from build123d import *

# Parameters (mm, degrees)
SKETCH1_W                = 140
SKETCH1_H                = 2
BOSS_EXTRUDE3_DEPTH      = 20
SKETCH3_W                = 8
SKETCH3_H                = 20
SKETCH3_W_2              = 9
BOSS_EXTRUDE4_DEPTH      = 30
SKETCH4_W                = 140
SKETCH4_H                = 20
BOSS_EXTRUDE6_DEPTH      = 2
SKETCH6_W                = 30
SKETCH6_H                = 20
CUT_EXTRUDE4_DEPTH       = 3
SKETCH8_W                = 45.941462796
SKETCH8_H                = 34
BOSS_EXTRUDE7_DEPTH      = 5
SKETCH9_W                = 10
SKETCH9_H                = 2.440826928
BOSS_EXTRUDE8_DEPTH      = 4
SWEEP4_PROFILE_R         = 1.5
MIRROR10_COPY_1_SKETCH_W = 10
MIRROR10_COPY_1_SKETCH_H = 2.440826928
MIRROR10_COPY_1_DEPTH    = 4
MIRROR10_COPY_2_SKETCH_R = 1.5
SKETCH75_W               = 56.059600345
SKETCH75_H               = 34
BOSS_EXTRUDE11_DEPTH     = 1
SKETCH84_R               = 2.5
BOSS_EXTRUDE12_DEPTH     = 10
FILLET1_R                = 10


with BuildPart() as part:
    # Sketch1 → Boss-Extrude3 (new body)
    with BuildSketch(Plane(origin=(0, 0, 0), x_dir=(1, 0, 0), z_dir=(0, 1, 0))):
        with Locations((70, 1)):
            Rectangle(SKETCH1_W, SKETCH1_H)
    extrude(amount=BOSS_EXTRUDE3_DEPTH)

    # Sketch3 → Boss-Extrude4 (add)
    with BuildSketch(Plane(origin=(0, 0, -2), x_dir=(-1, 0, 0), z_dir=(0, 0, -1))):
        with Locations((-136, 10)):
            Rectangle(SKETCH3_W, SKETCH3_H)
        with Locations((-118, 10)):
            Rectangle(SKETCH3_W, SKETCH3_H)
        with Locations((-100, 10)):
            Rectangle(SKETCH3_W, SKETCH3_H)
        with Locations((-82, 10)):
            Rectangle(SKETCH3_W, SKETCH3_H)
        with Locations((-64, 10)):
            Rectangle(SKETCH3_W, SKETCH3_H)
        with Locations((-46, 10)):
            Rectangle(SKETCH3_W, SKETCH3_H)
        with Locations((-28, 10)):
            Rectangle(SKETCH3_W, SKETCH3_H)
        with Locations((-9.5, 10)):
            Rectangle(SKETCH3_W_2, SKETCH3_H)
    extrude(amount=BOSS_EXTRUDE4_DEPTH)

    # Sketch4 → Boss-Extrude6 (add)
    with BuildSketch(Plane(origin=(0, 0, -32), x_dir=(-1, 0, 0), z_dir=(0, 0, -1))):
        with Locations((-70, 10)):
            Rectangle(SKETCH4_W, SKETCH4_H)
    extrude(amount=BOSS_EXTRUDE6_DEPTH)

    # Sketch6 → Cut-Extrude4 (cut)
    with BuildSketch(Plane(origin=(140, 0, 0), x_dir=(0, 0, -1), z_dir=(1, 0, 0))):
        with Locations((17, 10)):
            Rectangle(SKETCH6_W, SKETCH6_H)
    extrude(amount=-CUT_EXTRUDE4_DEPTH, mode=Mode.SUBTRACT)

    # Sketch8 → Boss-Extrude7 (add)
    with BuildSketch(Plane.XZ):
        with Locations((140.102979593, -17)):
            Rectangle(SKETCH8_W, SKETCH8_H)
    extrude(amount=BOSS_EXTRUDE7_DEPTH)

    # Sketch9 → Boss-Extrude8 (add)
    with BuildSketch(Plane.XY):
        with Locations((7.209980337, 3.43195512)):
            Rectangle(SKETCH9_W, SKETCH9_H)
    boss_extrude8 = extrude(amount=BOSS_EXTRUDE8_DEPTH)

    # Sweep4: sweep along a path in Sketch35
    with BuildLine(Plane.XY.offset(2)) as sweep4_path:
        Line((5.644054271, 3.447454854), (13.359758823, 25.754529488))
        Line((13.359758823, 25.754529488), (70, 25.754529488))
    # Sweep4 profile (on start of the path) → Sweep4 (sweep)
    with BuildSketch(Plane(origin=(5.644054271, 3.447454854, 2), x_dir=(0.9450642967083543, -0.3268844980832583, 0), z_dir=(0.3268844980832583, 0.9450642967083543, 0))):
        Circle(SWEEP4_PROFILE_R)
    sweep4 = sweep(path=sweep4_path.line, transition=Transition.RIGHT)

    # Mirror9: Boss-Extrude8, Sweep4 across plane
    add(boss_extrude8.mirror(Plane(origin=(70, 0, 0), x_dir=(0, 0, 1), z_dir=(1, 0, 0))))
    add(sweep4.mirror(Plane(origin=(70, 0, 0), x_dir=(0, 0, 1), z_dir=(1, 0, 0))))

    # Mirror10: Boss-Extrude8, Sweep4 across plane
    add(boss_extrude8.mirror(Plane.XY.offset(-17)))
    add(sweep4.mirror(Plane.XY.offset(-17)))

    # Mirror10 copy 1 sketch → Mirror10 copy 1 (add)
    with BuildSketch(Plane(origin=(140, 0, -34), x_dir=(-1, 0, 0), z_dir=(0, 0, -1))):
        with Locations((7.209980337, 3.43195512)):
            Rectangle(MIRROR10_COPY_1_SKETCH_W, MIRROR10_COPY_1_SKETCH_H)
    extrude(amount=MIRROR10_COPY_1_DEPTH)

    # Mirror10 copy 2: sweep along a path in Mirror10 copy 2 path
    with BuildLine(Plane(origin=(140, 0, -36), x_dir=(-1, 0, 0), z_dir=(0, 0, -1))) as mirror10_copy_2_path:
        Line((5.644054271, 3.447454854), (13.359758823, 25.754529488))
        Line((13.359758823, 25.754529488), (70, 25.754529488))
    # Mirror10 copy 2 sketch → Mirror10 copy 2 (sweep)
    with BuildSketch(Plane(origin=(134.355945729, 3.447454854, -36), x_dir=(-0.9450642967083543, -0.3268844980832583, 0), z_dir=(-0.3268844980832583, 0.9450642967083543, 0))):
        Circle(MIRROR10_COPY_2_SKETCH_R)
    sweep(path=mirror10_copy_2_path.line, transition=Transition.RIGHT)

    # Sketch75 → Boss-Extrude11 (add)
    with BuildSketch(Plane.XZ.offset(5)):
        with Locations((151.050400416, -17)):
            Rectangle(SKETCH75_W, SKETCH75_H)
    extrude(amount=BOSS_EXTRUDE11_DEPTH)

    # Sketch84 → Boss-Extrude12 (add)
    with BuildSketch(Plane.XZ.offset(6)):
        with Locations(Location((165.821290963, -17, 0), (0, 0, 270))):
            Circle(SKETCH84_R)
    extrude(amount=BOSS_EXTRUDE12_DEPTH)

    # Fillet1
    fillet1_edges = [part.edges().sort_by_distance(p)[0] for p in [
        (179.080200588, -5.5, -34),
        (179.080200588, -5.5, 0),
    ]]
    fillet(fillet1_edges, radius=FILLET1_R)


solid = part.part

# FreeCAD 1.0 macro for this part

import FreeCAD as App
import Part
import Sketcher
Q = App.Units.Quantity


def edges_at(feature, points):
    """Names of the edges that pass closest to the given points."""
    edges = feature.Shape.Edges
    near = lambda p: min(range(len(edges)), key=lambda i: edges[i].distToShape(Part.Vertex(*p))[0])
    return sorted({f"Edge{near(p) + 1}" for p in points})


def add_polygon(sketch, points):
    """Adds a closed chain of lines whose ends are joined by coincident constraints."""
    first, n = sketch.GeometryCount, len(points)
    for a, b in zip(points, points[1:] + points[:1]):
        sketch.addGeometry(Part.LineSegment(App.Vector(*a, 0), App.Vector(*b, 0)), False)
    for i in range(n):
        sketch.addConstraint(Sketcher.Constraint("Coincident", first + i, 2, first + (i + 1) % n, 1))

doc = App.newDocument("Part")
body = doc.addObject("PartDesign::Body", "Body")

# Sketch on XZ plane
sketch1 = body.newObject("Sketcher::SketchObject", "Sketch")
sketch1.AttachmentSupport = (doc.getObject("XZ_Plane"), [""])
sketch1.MapMode = "FlatFace"
add_polygon(sketch1, [(0, -2), (0, 0), (140, 0), (140, -2)])  # lines 0-3
sketch1.addConstraint([
    Sketcher.Constraint("Vertical", 0),
    Sketcher.Constraint("Horizontal", 1),
    Sketcher.Constraint("Vertical", 2),
    Sketcher.Constraint("Horizontal", 3),
    Sketcher.Constraint("Coincident", 0, 2, -1, 1),
    Sketcher.Constraint("DistanceX", 1, 1, 1, 2, Q("140 mm")),
    Sketcher.Constraint("DistanceY", 0, 1, 0, 2, Q("2 mm")),
])
pad1 = body.newObject("PartDesign::Pad", "Pad")
pad1.Profile = sketch1
pad1.Length = 20
pad1.Reversed = True

# Sketch on XY plane
sketch2 = body.newObject("Sketcher::SketchObject", "Sketch001")
sketch2.AttachmentSupport = (doc.getObject("XY_Plane"), [""])
sketch2.MapMode = "FlatFace"
sketch2.AttachmentOffset = App.Placement(App.Vector(0, 0, -2), App.Rotation())
add_polygon(sketch2, [(140, 20), (140, 0), (132, 0), (132, 20)])  # lines 0-3
add_polygon(sketch2, [(122, 20), (122, 0), (114, 0), (114, 20)])  # lines 4-7
add_polygon(sketch2, [(104, 20), (104, 0), (96, 0), (96, 20)])  # lines 8-11
add_polygon(sketch2, [(86, 20), (86, 0), (78, 0), (78, 20)])  # lines 12-15
add_polygon(sketch2, [(68, 20), (68, 0), (60, 0), (60, 20)])  # lines 16-19
add_polygon(sketch2, [(50, 20), (50, 0), (42, 0), (42, 20)])  # lines 20-23
add_polygon(sketch2, [(32, 20), (32, 0), (24, 0), (24, 20)])  # lines 24-27
add_polygon(sketch2, [(14, 20), (14, 0), (5, 0), (5, 20)])  # lines 28-31
sketch2.addConstraint([
    Sketcher.Constraint("Vertical", 0),
    Sketcher.Constraint("Horizontal", 1),
    Sketcher.Constraint("Vertical", 2),
    Sketcher.Constraint("Horizontal", 3),
    Sketcher.Constraint("Vertical", 4),
    Sketcher.Constraint("Horizontal", 5),
    Sketcher.Constraint("Vertical", 6),
    Sketcher.Constraint("Horizontal", 7),
    Sketcher.Constraint("Vertical", 8),
    Sketcher.Constraint("Horizontal", 9),
    Sketcher.Constraint("Vertical", 10),
    Sketcher.Constraint("Horizontal", 11),
    Sketcher.Constraint("Vertical", 12),
    Sketcher.Constraint("Horizontal", 13),
    Sketcher.Constraint("Vertical", 14),
    Sketcher.Constraint("Horizontal", 15),
    Sketcher.Constraint("Vertical", 16),
    Sketcher.Constraint("Horizontal", 17),
    Sketcher.Constraint("Vertical", 18),
    Sketcher.Constraint("Horizontal", 19),
    Sketcher.Constraint("Vertical", 20),
    Sketcher.Constraint("Horizontal", 21),
    Sketcher.Constraint("Vertical", 22),
    Sketcher.Constraint("Horizontal", 23),
    Sketcher.Constraint("Vertical", 24),
    Sketcher.Constraint("Horizontal", 25),
    Sketcher.Constraint("Vertical", 26),
    Sketcher.Constraint("Horizontal", 27),
    Sketcher.Constraint("Vertical", 28),
    Sketcher.Constraint("Horizontal", 29),
    Sketcher.Constraint("Vertical", 30),
    Sketcher.Constraint("Horizontal", 31),
    Sketcher.Constraint("PointOnObject", 0, 2, -1),
    Sketcher.Constraint("PointOnObject", 4, 2, -1),
    Sketcher.Constraint("PointOnObject", 8, 2, -1),
    Sketcher.Constraint("PointOnObject", 12, 2, -1),
    Sketcher.Constraint("PointOnObject", 16, 2, -1),
    Sketcher.Constraint("PointOnObject", 20, 2, -1),
    Sketcher.Constraint("PointOnObject", 24, 2, -1),
    Sketcher.Constraint("PointOnObject", 28, 2, -1),
    Sketcher.Constraint("Horizontal", 3, 2, 6, 2),
    Sketcher.Constraint("Horizontal", 7, 2, 10, 2),
    Sketcher.Constraint("Horizontal", 11, 2, 14, 2),
    Sketcher.Constraint("Horizontal", 15, 2, 18, 2),
    Sketcher.Constraint("Horizontal", 19, 2, 22, 2),
    Sketcher.Constraint("Horizontal", 23, 2, 26, 2),
    Sketcher.Constraint("Horizontal", 27, 2, 30, 2),
    Sketcher.Constraint("Equal", 3, 5),
    Sketcher.Constraint("Equal", 7, 9),
    Sketcher.Constraint("Equal", 11, 13),
    Sketcher.Constraint("Equal", 15, 17),
    Sketcher.Constraint("Equal", 19, 21),
    Sketcher.Constraint("Equal", 23, 25),
    Sketcher.Constraint("DistanceX", 1, 2, 1, 1, Q("8 mm")),
    Sketcher.Constraint("DistanceX", 29, 2, 29, 1, Q("9 mm")),
    Sketcher.Constraint("DistanceY", 0, 2, 0, 1, Q("20 mm")),
    Sketcher.Constraint("DistanceX", -1, 1, 0, 2, Q("140 mm")),
    Sketcher.Constraint("DistanceX", -1, 1, 4, 2, Q("122 mm")),
    Sketcher.Constraint("DistanceX", -1, 1, 8, 2, Q("104 mm")),
    Sketcher.Constraint("DistanceX", -1, 1, 12, 2, Q("86 mm")),
    Sketcher.Constraint("DistanceX", -1, 1, 16, 2, Q("68 mm")),
    Sketcher.Constraint("DistanceX", -1, 1, 20, 2, Q("50 mm")),
    Sketcher.Constraint("DistanceX", -1, 1, 24, 2, Q("32 mm")),
    Sketcher.Constraint("DistanceX", -1, 1, 28, 2, Q("14 mm")),
])
pad2 = body.newObject("PartDesign::Pad", "Pad001")
pad2.Profile = sketch2
pad2.Length = 30
pad2.Reversed = True

# Sketch on XY plane
sketch3 = body.newObject("Sketcher::SketchObject", "Sketch002")
sketch3.AttachmentSupport = (doc.getObject("XY_Plane"), [""])
sketch3.MapMode = "FlatFace"
sketch3.AttachmentOffset = App.Placement(App.Vector(0, 0, -32), App.Rotation())
add_polygon(sketch3, [(140, 20), (140, 0), (0, 0), (0, 20)])  # lines 0-3
sketch3.addConstraint([
    Sketcher.Constraint("Vertical", 0),
    Sketcher.Constraint("Horizontal", 1),
    Sketcher.Constraint("Vertical", 2),
    Sketcher.Constraint("Horizontal", 3),
    Sketcher.Constraint("Coincident", 1, 2, -1, 1),
    Sketcher.Constraint("DistanceX", 1, 2, 1, 1, Q("140 mm")),
    Sketcher.Constraint("DistanceY", 0, 2, 0, 1, Q("20 mm")),
])
pad3 = body.newObject("PartDesign::Pad", "Pad002")
pad3.Profile = sketch3
pad3.Length = 2
pad3.Reversed = True

# Sketch on YZ plane
sketch4 = body.newObject("Sketcher::SketchObject", "Sketch003")
sketch4.AttachmentSupport = (doc.getObject("YZ_Plane"), [""])
sketch4.MapMode = "FlatFace"
sketch4.AttachmentOffset = App.Placement(App.Vector(0, 0, 140), App.Rotation())
add_polygon(sketch4, [(20, -2), (0, -2), (0, -32), (20, -32)])  # lines 0-3
sketch4.addConstraint([
    Sketcher.Constraint("Horizontal", 0),
    Sketcher.Constraint("Vertical", 1),
    Sketcher.Constraint("Horizontal", 2),
    Sketcher.Constraint("Vertical", 3),
    Sketcher.Constraint("PointOnObject", 0, 2, -2),
    Sketcher.Constraint("DistanceX", 0, 2, 0, 1, Q("20 mm")),
    Sketcher.Constraint("DistanceY", 1, 2, 1, 1, Q("30 mm")),
    Sketcher.Constraint("DistanceY", 0, 2, -1, 1, Q("2 mm")),
])
pocket1 = body.newObject("PartDesign::Pocket", "Pocket")
pocket1.Profile = sketch4
pocket1.Length = 3

# Sketch on XZ plane
sketch5 = body.newObject("Sketcher::SketchObject", "Sketch004")
sketch5.AttachmentSupport = (doc.getObject("XZ_Plane"), [""])
sketch5.MapMode = "FlatFace"
add_polygon(sketch5, [(117.132248, 0), (117.132248, -34), (163.073711, -34), (163.073711, 0)])  # lines 0-3
sketch5.addConstraint([
    Sketcher.Constraint("Vertical", 0),
    Sketcher.Constraint("Horizontal", 1),
    Sketcher.Constraint("Vertical", 2),
    Sketcher.Constraint("Horizontal", 3),
    Sketcher.Constraint("PointOnObject", 2, 2, -1),
    Sketcher.Constraint("DistanceY", 0, 2, 0, 1, Q("34 mm")),
    Sketcher.Constraint("DistanceX", 1, 1, 1, 2, Q("45.941463 mm")),
    Sketcher.Constraint("DistanceX", -1, 1, 0, 2, Q("117.132248 mm")),
])
pad4 = body.newObject("PartDesign::Pad", "Pad003")
pad4.Profile = sketch5
pad4.Length = 5

# Sketch on XY plane
sketch6 = body.newObject("Sketcher::SketchObject", "Sketch005")
sketch6.AttachmentSupport = (doc.getObject("XY_Plane"), [""])
sketch6.MapMode = "FlatFace"
add_polygon(sketch6, [(2.20998, 4.652369), (2.20998, 2.211542), (12.20998, 2.211542), (12.20998, 4.652369)])  # lines 0-3
sketch6.addConstraint([
    Sketcher.Constraint("Vertical", 0),
    Sketcher.Constraint("Horizontal", 1),
    Sketcher.Constraint("Vertical", 2),
    Sketcher.Constraint("Horizontal", 3),
    Sketcher.Constraint("DistanceX", 1, 1, 1, 2, Q("10 mm")),
    Sketcher.Constraint("DistanceY", 0, 2, 0, 1, Q("2.440827 mm")),
    Sketcher.Constraint("DistanceX", -1, 1, 0, 2, Q("2.20998 mm")),
    Sketcher.Constraint("DistanceY", -1, 1, 0, 2, Q("2.211542 mm")),
])
pad5 = body.newObject("PartDesign::Pad", "Pad004")
pad5.Profile = sketch6
pad5.Length = 4

# Sketch on an angled plane
sketch7 = body.newObject("Sketcher::SketchObject", "Sketch006")
sketch7.Placement = App.Placement(App.Vector(5.644054, 3.447455, 2), App.Rotation(App.Vector(0.945064297, -0.326884498, 0), App.Vector(0, 0, -1), App.Vector(0.326884498, 0.945064297, 0), "ZXY"))
sketch7.addGeometry(Part.Circle(App.Vector(0, 0, 0), App.Vector(0, 0, 1), 1.5), False)
sketch7.addConstraint([
    Sketcher.Constraint("Coincident", 0, 3, -1, 1),
    Sketcher.Constraint("Diameter", 0, Q("3 mm")),
])

# Sketch on XY plane
sketch8 = body.newObject("Sketcher::SketchObject", "Sketch007")
sketch8.AttachmentSupport = (doc.getObject("XY_Plane"), [""])
sketch8.MapMode = "FlatFace"
sketch8.AttachmentOffset = App.Placement(App.Vector(0, 0, 2), App.Rotation())
sketch8.addGeometry([
    Part.LineSegment(App.Vector(5.644054, 3.447455, 0), App.Vector(13.359759, 25.754529, 0)),
    Part.LineSegment(App.Vector(13.359759, 25.754529, 0), App.Vector(70, 25.754529, 0)),
], False)
sketch8.addConstraint([
    Sketcher.Constraint("Coincident", 0, 2, 1, 1),
    Sketcher.Constraint("Horizontal", 1),
    Sketcher.Constraint("DistanceX", -1, 1, 1, 2, Q("70 mm")),
    Sketcher.Constraint("DistanceX", 1, 1, 1, 2, Q("56.640241 mm")),
    Sketcher.Constraint("DistanceY", -1, 1, 0, 2, Q("25.754529 mm")),
    Sketcher.Constraint("Distance", 0, Q("23.603764 mm")),
    Sketcher.Constraint("DistanceX", -1, 1, 0, 1, Q("5.644054 mm")),
])
doc.recompute()

additivepipe = body.newObject("PartDesign::AdditivePipe", "AdditivePipe")
additivepipe.Profile = sketch7
additivepipe.Spine = (sketch8, ["Edge1", "Edge2"])
additivepipe.Transition = "Right corner"
doc.recompute()

datumplane = body.newObject("PartDesign::Plane", "DatumPlane")
datumplane.AttachmentSupport = (doc.getObject("YZ_Plane"), [""])
datumplane.MapMode = "FlatFace"
datumplane.AttachmentOffset = App.Placement(App.Vector(0, 0, 70), App.Rotation())
mirrored = body.newObject("PartDesign::Mirrored", "Mirrored")
mirrored.Originals = [pad5, additivepipe]
mirrored.MirrorPlane = (datumplane, [""])
body.Tip = mirrored
doc.recompute()

datumplane2 = body.newObject("PartDesign::Plane", "DatumPlane001")
datumplane2.AttachmentSupport = (doc.getObject("XY_Plane"), [""])
datumplane2.MapMode = "FlatFace"
datumplane2.AttachmentOffset = App.Placement(App.Vector(0, 0, -17), App.Rotation())
mirrored2 = body.newObject("PartDesign::Mirrored", "Mirrored001")
mirrored2.Originals = [pad5, additivepipe]
mirrored2.MirrorPlane = (datumplane2, [""])
body.Tip = mirrored2

# Sketch on XY plane
sketch9 = body.newObject("Sketcher::SketchObject", "Sketch008")
sketch9.AttachmentSupport = (doc.getObject("XY_Plane"), [""])
sketch9.MapMode = "FlatFace"
sketch9.AttachmentOffset = App.Placement(App.Vector(0, 0, -34), App.Rotation())
add_polygon(sketch9, [(137.79002, 4.652369), (137.79002, 2.211542), (127.79002, 2.211542), (127.79002, 4.652369)])  # lines 0-3
sketch9.addConstraint([
    Sketcher.Constraint("Vertical", 0),
    Sketcher.Constraint("Horizontal", 1),
    Sketcher.Constraint("Vertical", 2),
    Sketcher.Constraint("Horizontal", 3),
    Sketcher.Constraint("DistanceX", 1, 2, 1, 1, Q("10 mm")),
    Sketcher.Constraint("DistanceY", 0, 2, 0, 1, Q("2.440827 mm")),
    Sketcher.Constraint("DistanceX", -1, 1, 0, 2, Q("137.79002 mm")),
    Sketcher.Constraint("DistanceY", -1, 1, 0, 2, Q("2.211542 mm")),
])
pad6 = body.newObject("PartDesign::Pad", "Pad005")
pad6.Profile = sketch9
pad6.Length = 4
pad6.Reversed = True

# Sketch on an angled plane
sketch10 = body.newObject("Sketcher::SketchObject", "Sketch009")
sketch10.Placement = App.Placement(App.Vector(134.355946, 3.447455, -36), App.Rotation(App.Vector(-0.945064297, -0.326884498, 0), App.Vector(0, 0, 1), App.Vector(-0.326884498, 0.945064297, 0), "ZXY"))
sketch10.addGeometry(Part.Circle(App.Vector(0, 0, 0), App.Vector(0, 0, 1), 1.5), False)
sketch10.addConstraint([
    Sketcher.Constraint("Coincident", 0, 3, -1, 1),
    Sketcher.Constraint("Diameter", 0, Q("3 mm")),
])

# Sketch on XY plane
sketch11 = body.newObject("Sketcher::SketchObject", "Sketch010")
sketch11.AttachmentSupport = (doc.getObject("XY_Plane"), [""])
sketch11.MapMode = "FlatFace"
sketch11.AttachmentOffset = App.Placement(App.Vector(0, 0, -36), App.Rotation())
sketch11.addGeometry([
    Part.LineSegment(App.Vector(134.355946, 3.447455, 0), App.Vector(126.640241, 25.754529, 0)),
    Part.LineSegment(App.Vector(126.640241, 25.754529, 0), App.Vector(70, 25.754529, 0)),
], False)
sketch11.addConstraint([
    Sketcher.Constraint("Coincident", 0, 2, 1, 1),
    Sketcher.Constraint("Horizontal", 1),
    Sketcher.Constraint("DistanceX", -1, 1, 1, 2, Q("70 mm")),
    Sketcher.Constraint("DistanceX", 1, 2, 1, 1, Q("56.640241 mm")),
    Sketcher.Constraint("DistanceY", -1, 1, 0, 2, Q("25.754529 mm")),
    Sketcher.Constraint("Distance", 0, Q("23.603764 mm")),
    Sketcher.Constraint("DistanceX", -1, 1, 0, 1, Q("134.355946 mm")),
])
doc.recompute()

additivepipe2 = body.newObject("PartDesign::AdditivePipe", "AdditivePipe001")
additivepipe2.Profile = sketch10
additivepipe2.Spine = (sketch11, ["Edge1", "Edge2"])
additivepipe2.Transition = "Right corner"

# Sketch on XZ plane
sketch12 = body.newObject("Sketcher::SketchObject", "Sketch011")
sketch12.AttachmentSupport = (doc.getObject("XZ_Plane"), [""])
sketch12.MapMode = "FlatFace"
sketch12.AttachmentOffset = App.Placement(App.Vector(0, 0, 5), App.Rotation())
add_polygon(sketch12, [(123.0206, 0), (123.0206, -34), (179.080201, -34), (179.080201, 0)])  # lines 0-3
sketch12.addConstraint([
    Sketcher.Constraint("Vertical", 0),
    Sketcher.Constraint("Horizontal", 1),
    Sketcher.Constraint("Vertical", 2),
    Sketcher.Constraint("Horizontal", 3),
    Sketcher.Constraint("PointOnObject", 2, 2, -1),
    Sketcher.Constraint("DistanceY", 0, 2, 0, 1, Q("34 mm")),
    Sketcher.Constraint("DistanceX", 1, 1, 1, 2, Q("56.0596 mm")),
    Sketcher.Constraint("DistanceX", -1, 1, 0, 2, Q("123.0206 mm")),
])
pad7 = body.newObject("PartDesign::Pad", "Pad006")
pad7.Profile = sketch12
pad7.Length = 1

# Sketch on XZ plane
sketch13 = body.newObject("Sketcher::SketchObject", "Sketch012")
sketch13.AttachmentSupport = (doc.getObject("XZ_Plane"), [""])
sketch13.MapMode = "FlatFace"
sketch13.AttachmentOffset = App.Placement(App.Vector(0, 0, 6), App.Rotation())
sketch13.addGeometry(Part.Circle(App.Vector(165.821291, -17, 0), App.Vector(0, 0, 1), 2.5), False)
sketch13.addConstraint([
    Sketcher.Constraint("Diameter", 0, Q("5 mm")),
    Sketcher.Constraint("DistanceY", 0, 3, -1, 1, Q("17 mm")),
    Sketcher.Constraint("DistanceX", -1, 1, 0, 3, Q("165.821291 mm")),
])
pad8 = body.newObject("PartDesign::Pad", "Pad007")
pad8.Profile = sketch13
pad8.Length = 10
doc.recompute()

fillet = body.newObject("PartDesign::Fillet", "Fillet")
fillet.Base = (pad8, edges_at(pad8, [(179.08, -5.5, -34), (179.08, -5.5, 0)]))
fillet.Radius = 10

doc.recompute()
